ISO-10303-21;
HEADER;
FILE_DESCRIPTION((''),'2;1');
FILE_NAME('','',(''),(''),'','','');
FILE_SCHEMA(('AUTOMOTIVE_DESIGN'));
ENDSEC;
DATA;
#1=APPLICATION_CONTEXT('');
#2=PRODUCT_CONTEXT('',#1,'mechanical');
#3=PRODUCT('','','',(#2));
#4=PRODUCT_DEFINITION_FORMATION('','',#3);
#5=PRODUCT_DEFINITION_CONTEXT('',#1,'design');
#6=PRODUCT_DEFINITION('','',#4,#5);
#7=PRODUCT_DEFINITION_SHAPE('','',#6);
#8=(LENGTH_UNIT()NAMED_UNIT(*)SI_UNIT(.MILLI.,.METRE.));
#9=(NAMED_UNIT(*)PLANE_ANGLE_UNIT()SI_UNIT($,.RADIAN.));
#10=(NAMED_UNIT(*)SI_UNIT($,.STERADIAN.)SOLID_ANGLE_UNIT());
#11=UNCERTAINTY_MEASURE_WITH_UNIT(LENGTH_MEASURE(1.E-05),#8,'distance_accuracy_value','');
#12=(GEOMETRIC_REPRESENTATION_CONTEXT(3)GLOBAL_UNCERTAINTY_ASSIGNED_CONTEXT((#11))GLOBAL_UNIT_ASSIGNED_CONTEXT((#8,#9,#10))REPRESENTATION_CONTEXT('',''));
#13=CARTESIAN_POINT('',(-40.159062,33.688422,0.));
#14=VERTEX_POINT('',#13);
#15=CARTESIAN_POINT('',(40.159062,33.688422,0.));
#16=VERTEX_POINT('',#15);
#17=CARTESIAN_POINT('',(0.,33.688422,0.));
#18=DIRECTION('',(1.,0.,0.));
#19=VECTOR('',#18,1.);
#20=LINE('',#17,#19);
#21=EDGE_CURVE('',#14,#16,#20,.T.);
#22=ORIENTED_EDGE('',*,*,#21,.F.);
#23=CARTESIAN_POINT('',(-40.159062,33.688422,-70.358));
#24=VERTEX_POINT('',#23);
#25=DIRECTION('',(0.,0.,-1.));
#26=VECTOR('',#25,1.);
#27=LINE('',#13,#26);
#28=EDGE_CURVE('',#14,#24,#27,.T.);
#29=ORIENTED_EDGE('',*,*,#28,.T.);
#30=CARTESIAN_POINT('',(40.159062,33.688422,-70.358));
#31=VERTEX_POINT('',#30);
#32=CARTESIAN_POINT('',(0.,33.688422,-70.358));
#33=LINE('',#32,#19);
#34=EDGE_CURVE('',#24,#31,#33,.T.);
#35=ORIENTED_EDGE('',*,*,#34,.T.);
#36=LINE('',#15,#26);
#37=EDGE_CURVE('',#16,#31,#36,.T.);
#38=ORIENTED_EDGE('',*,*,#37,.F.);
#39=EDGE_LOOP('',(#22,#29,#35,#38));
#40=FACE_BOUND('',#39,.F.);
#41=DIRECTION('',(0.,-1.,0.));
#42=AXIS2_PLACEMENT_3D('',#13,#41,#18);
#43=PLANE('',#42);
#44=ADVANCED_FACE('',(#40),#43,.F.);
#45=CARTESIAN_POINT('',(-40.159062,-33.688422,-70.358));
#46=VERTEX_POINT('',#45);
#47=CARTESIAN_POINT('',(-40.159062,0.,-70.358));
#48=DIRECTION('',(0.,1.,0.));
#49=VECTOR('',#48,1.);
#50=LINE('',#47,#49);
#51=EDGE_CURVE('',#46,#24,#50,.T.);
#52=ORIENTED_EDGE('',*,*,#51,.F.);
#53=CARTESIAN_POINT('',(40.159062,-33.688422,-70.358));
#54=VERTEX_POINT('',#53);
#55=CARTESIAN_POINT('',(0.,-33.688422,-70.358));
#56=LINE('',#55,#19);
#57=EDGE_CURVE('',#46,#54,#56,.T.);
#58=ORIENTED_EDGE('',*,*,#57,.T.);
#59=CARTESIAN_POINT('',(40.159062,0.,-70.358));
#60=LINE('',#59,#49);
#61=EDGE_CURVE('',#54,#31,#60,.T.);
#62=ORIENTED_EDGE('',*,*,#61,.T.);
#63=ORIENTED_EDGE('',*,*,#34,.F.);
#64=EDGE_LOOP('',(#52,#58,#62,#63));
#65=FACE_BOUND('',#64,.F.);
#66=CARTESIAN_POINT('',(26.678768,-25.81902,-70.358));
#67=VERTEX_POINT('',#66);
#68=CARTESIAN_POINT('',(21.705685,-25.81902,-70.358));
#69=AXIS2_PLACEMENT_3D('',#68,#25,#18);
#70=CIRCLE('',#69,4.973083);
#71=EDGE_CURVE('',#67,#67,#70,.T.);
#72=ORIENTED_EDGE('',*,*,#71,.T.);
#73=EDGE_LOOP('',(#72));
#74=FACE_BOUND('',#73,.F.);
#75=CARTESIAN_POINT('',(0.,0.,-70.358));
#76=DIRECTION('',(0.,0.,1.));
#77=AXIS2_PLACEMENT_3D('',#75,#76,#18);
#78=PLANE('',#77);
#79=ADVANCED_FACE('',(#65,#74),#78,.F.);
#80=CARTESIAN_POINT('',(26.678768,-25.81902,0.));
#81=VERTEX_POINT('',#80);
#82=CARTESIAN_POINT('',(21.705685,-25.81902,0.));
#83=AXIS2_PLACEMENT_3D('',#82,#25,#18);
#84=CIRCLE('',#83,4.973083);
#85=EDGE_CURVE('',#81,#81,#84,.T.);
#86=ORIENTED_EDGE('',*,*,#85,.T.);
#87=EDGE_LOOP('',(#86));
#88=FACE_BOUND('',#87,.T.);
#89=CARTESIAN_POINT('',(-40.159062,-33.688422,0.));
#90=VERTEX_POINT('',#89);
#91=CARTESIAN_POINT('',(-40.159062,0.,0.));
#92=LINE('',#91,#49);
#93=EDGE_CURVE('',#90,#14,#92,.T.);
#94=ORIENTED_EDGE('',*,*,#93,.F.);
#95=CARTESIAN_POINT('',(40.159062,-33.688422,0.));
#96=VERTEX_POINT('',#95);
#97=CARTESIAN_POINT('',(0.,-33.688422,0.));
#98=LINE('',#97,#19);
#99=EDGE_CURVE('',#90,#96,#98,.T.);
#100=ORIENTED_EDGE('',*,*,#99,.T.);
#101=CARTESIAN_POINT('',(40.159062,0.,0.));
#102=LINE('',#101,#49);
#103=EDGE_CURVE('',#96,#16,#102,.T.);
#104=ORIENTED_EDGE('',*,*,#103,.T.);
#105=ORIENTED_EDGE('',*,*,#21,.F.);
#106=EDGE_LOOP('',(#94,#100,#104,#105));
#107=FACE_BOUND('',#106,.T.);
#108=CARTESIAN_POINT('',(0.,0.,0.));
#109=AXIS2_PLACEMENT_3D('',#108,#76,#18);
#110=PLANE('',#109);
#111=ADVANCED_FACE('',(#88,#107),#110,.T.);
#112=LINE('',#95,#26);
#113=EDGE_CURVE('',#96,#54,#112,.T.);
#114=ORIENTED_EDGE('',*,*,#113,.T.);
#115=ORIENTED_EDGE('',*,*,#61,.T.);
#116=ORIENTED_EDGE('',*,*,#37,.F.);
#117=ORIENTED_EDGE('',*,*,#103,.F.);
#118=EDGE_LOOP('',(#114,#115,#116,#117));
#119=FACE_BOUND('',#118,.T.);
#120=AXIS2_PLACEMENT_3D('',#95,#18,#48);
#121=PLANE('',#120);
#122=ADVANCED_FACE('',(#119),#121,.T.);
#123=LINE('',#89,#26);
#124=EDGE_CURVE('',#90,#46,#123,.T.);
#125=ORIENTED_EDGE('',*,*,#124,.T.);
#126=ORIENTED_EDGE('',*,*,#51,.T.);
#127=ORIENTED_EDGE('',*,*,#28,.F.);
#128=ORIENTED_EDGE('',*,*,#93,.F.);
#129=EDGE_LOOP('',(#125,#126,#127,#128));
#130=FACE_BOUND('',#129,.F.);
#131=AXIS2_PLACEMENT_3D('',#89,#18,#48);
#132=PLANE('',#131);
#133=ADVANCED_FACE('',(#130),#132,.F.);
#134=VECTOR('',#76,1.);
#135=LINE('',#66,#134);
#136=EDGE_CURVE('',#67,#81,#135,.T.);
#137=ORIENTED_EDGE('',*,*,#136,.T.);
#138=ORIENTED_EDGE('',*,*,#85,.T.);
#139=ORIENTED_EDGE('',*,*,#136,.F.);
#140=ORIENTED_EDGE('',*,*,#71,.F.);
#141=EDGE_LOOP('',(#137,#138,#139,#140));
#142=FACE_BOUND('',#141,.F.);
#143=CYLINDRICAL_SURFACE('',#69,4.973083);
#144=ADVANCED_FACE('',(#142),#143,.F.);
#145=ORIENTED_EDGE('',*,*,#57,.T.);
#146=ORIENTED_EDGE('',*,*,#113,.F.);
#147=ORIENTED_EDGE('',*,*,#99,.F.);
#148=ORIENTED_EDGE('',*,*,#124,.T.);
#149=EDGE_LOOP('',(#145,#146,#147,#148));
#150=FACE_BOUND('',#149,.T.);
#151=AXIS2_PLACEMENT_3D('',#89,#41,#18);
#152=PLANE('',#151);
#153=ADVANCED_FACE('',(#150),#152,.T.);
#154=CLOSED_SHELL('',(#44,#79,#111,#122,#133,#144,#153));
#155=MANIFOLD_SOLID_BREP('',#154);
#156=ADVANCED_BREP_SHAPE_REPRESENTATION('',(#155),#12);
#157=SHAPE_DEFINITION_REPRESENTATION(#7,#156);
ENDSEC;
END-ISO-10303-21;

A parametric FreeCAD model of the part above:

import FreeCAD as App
import Part
import Sketcher
from FreeCAD import Vector
Q = App.Units.Quantity

doc = App.newDocument("Part")
body = doc.addObject("PartDesign::Body", "Body")

# Sketch on XY plane
sketch1 = body.newObject("Sketcher::SketchObject", "Sketch")
sketch1.AttachmentSupport = (doc.getObject("XY_Plane"), [""])
sketch1.MapMode = "FlatFace"
sketch1.addGeometry(Part.LineSegment(Vector(-40, 34, 0), Vector(-40, -34, 0)), False)
sketch1.addGeometry(Part.LineSegment(Vector(-40, -34, 0), Vector(40, -34, 0)), False)
sketch1.addGeometry(Part.LineSegment(Vector(40, -34, 0), Vector(40, 34, 0)), False)
sketch1.addGeometry(Part.LineSegment(Vector(40, 34, 0), Vector(-40, 34, 0)), False)
sketch1.addConstraint(Sketcher.Constraint("Coincident", 0, 2, 1, 1))
sketch1.addConstraint(Sketcher.Constraint("Coincident", 1, 2, 2, 1))
sketch1.addConstraint(Sketcher.Constraint("Coincident", 2, 2, 3, 1))
sketch1.addConstraint(Sketcher.Constraint("Coincident", 3, 2, 0, 1))
sketch1.addConstraint(Sketcher.Constraint("Vertical", 0))
sketch1.addConstraint(Sketcher.Constraint("Horizontal", 1))
sketch1.addConstraint(Sketcher.Constraint("Vertical", 2))
sketch1.addConstraint(Sketcher.Constraint("Horizontal", 3))
sketch1.addConstraint(Sketcher.Constraint("Symmetric", 0, 2, 2, 2, -1, 1))
sketch1.addConstraint(Sketcher.Constraint("DistanceX", 1, 1, 1, 2, 80.318124))
sketch1.addConstraint(Sketcher.Constraint("DistanceY", 0, 2, 0, 1, 67.376844))
pad1 = body.newObject("PartDesign::Pad", "Pad")
pad1.Profile = sketch1
pad1.Length = Q("2.77 in")
pad1.Reversed = True

# Sketch on XY plane
sketch2 = body.newObject("Sketcher::SketchObject", "Sketch001")
sketch2.AttachmentSupport = (doc.getObject("XY_Plane"), [""])
sketch2.MapMode = "FlatFace"
sketch2.AttachmentOffset = App.Placement(Vector(0, 0, -2.77 * 25.4), App.Rotation())
sketch2.addGeometry(Part.Circle(Vector(21.7, -25.8, 0), Vector(0, 0, 1), 5), False)
sketch2.addConstraint(Sketcher.Constraint("Diameter", 0, 9.946166))
sketch2.addConstraint(Sketcher.Constraint("DistanceY", 0, 3, -1, 1, 25.81902))
sketch2.addConstraint(Sketcher.Constraint("DistanceX", -1, 1, 0, 3, 21.705685))
pocket1 = body.newObject("PartDesign::Pocket", "Pocket")
pocket1.Profile = sketch2
pocket1.Type = "ThroughAll"
pocket1.Reversed = True

doc.recompute()
